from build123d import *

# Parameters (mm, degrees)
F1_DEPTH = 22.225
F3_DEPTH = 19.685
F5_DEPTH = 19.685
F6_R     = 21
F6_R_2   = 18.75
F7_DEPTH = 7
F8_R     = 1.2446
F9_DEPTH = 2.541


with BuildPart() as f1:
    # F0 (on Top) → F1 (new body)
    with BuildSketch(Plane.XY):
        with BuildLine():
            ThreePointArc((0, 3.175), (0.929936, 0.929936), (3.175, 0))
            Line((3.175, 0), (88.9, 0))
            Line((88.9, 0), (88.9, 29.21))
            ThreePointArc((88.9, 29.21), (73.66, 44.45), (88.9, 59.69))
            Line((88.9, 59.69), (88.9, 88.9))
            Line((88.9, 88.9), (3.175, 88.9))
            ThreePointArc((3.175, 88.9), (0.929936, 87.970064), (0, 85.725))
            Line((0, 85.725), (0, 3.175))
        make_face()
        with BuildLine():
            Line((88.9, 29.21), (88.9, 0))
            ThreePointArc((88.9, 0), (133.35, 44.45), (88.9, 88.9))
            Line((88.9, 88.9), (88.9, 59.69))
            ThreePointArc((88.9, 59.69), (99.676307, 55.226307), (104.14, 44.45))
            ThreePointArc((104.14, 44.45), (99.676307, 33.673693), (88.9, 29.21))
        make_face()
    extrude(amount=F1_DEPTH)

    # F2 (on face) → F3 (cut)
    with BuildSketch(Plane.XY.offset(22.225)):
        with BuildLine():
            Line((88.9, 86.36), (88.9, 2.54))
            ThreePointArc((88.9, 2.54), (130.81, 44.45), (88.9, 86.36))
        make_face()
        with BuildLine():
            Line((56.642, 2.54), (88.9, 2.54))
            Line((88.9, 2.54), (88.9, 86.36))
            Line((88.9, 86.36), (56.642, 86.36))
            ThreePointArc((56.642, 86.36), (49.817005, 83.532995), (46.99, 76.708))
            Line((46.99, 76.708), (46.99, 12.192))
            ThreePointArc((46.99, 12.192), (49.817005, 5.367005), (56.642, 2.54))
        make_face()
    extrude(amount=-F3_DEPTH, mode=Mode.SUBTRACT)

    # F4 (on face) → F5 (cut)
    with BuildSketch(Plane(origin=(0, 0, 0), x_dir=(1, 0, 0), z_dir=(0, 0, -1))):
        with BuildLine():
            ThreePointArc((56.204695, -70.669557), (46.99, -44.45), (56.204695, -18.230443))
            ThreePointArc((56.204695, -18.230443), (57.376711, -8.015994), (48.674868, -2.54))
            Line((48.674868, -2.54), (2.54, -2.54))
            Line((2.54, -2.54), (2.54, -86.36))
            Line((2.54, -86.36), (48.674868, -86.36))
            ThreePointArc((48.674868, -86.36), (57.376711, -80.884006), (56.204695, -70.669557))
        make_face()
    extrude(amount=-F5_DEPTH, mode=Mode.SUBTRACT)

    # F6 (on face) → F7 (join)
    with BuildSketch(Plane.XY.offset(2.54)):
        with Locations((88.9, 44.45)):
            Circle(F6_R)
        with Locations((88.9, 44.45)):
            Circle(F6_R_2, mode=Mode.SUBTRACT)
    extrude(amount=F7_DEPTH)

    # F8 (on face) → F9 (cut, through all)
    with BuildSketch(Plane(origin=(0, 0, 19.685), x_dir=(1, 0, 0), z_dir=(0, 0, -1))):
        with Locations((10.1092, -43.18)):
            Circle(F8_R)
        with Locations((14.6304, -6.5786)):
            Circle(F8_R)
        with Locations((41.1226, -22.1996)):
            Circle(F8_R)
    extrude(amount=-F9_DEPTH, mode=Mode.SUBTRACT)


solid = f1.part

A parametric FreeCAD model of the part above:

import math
import FreeCAD as App
import Part
import Sketcher
Q = App.Units.Quantity

doc = App.newDocument("Part")
body = doc.addObject("PartDesign::Body", "Body")

sketch1 = body.newObject("Sketcher::SketchObject", "Sketch")
sketch1.AttachmentSupport = (doc.getObject("XY_Plane"), [""])
sketch1.MapMode = "FlatFace"
sketch1.addGeometry([
    Part.ArcOfCircle(Part.Circle(App.Vector(3.2, 3.2, 0), App.Vector(0, 0, 1), 3.2), math.radians(-180), math.radians(-90)),
    Part.LineSegment(App.Vector(3.2, 0, 0), App.Vector(88.9, 0, 0)),
    Part.ArcOfCircle(Part.Circle(App.Vector(88.9, 44.5, 0), App.Vector(0, 0, 1), 44.5), math.radians(-90), math.radians(90)),
    Part.LineSegment(App.Vector(88.9, 88.9, 0), App.Vector(3.2, 88.9, 0)),
    Part.ArcOfCircle(Part.Circle(App.Vector(3.2, 85.7, 0), App.Vector(0, 0, 1), 3.2), math.radians(90), math.radians(180)),
    Part.LineSegment(App.Vector(0, 85.7, 0), App.Vector(0, 3.2, 0)),
    Part.ArcOfCircle(Part.Circle(App.Vector(88.9, 44.5, 0), App.Vector(0, 0, 1), 15.2), math.radians(90), math.radians(270)),
    Part.ArcOfCircle(Part.Circle(App.Vector(88.9, 44.4, 0), App.Vector(0, 0, 1), 15.2), math.radians(0), math.radians(90)),
    Part.ArcOfCircle(Part.Circle(App.Vector(88.9, 44.5, 0), App.Vector(0, 0, 1), 15.2), math.radians(-90), math.radians(0)),
], False)
sketch1.addConstraint([
    Sketcher.Constraint("Tangent", 0, 2, 1, 1),
    Sketcher.Constraint("Tangent", 1, 2, 2, 1),
    Sketcher.Constraint("Tangent", 2, 2, 3, 1),
    Sketcher.Constraint("Tangent", 3, 2, 4, 1),
    Sketcher.Constraint("Tangent", 4, 2, 5, 1),
    Sketcher.Constraint("Tangent", 5, 2, 0, 1),
    Sketcher.Constraint("Tangent", 6, 1, 7, 2),
    Sketcher.Constraint("Tangent", 7, 1, 8, 2),
    Sketcher.Constraint("Tangent", 8, 1, 6, 2),
    Sketcher.Constraint("Horizontal", 1),
    Sketcher.Constraint("Horizontal", 3),
    Sketcher.Constraint("Vertical", 5),
    Sketcher.Constraint("Coincident", 6, 3, 2, 3),
    Sketcher.Constraint("Equal", 0, 4),
    Sketcher.Constraint("PointOnObject", 0, 2, -1),
    Sketcher.Constraint("PointOnObject", 4, 2, -2),
    Sketcher.Constraint("Horizontal", 8, 3, 7, 1),
    Sketcher.Constraint("Vertical", 2, 2, 6, 1),
    Sketcher.Constraint("Vertical", 6, 1, 8, 1),
    Sketcher.Constraint("Radius", 6, Q("0.6 in")),
    Sketcher.Constraint("Radius", 2, Q("1.75 in")),
    Sketcher.Constraint("Radius", 0, Q("0.125 in")),
    Sketcher.Constraint("DistanceX", -1, 1, 2, 3, Q("3.5 in")),
])
pad1 = body.newObject("PartDesign::Pad", "Pad")
pad1.Profile = sketch1
pad1.Length = Q("0.875 in")

sketch2 = body.newObject("Sketcher::SketchObject", "Sketch001")
sketch2.AttachmentSupport = (doc.getObject("XY_Plane"), [""])
sketch2.MapMode = "FlatFace"
sketch2.AttachmentOffset = App.Placement(App.Vector(0, 0, 0.875 * 25.4), App.Rotation())
sketch2.addGeometry([
    Part.ArcOfCircle(Part.Circle(App.Vector(89, 44, 0), App.Vector(0, 0, 1), 42), math.radians(-90), math.radians(90)),
    Part.LineSegment(App.Vector(89, 86, 0), App.Vector(57, 86, 0)),
    Part.ArcOfCircle(Part.Circle(App.Vector(57, 77, 0), App.Vector(0, 0, 1), 10), math.radians(90), math.radians(180)),
    Part.LineSegment(App.Vector(47, 77, 0), App.Vector(47, 12, 0)),
    Part.ArcOfCircle(Part.Circle(App.Vector(57, 12, 0), App.Vector(0, 0, 1), 10), math.radians(180), math.radians(270)),
    Part.LineSegment(App.Vector(57, 3, 0), App.Vector(89, 3, 0)),
], False)
sketch2.addConstraint([
    Sketcher.Constraint("Tangent", 0, 2, 1, 1),
    Sketcher.Constraint("Tangent", 1, 2, 2, 1),
    Sketcher.Constraint("Tangent", 2, 2, 3, 1),
    Sketcher.Constraint("Tangent", 3, 2, 4, 1),
    Sketcher.Constraint("Tangent", 4, 2, 5, 1),
    Sketcher.Constraint("Tangent", 5, 2, 0, 1),
    Sketcher.Constraint("Horizontal", 1),
    Sketcher.Constraint("Vertical", 3),
    Sketcher.Constraint("Horizontal", 5),
    Sketcher.Constraint("Equal", 2, 4),
    Sketcher.Constraint("Radius", 0, Q("1.65 in")),
    Sketcher.Constraint("Radius", 2, Q("0.38 in")),
    Sketcher.Constraint("DistanceX", 1, 2, 1, 1, Q("1.27 in")),
    Sketcher.Constraint("DistanceX", -1, 1, 0, 3, Q("3.5 in")),
    Sketcher.Constraint("DistanceY", -1, 1, 0, 2, Q("3.4 in")),
])
pocket1 = body.newObject("PartDesign::Pocket", "Pocket")
pocket1.Profile = sketch2
pocket1.Length = Q("0.775 in")

sketch3 = body.newObject("Sketcher::SketchObject", "Sketch002")
sketch3.AttachmentSupport = (doc.getObject("XY_Plane"), [""])
sketch3.MapMode = "FlatFace"
sketch3.addGeometry([
    Part.ArcOfCircle(Part.Circle(App.Vector(89, 44, 0), App.Vector(0, 0, 1), 42), math.radians(141), math.radians(219)),
    Part.ArcOfCircle(Part.Circle(App.Vector(49, 12, 0), App.Vector(0, 0, 1), 10), math.radians(-90), math.radians(39)),
    Part.LineSegment(App.Vector(49, 3, 0), App.Vector(3, 3, 0)),
    Part.LineSegment(App.Vector(3, 3, 0), App.Vector(3, 86, 0)),
    Part.LineSegment(App.Vector(3, 86, 0), App.Vector(49, 86, 0)),
    Part.ArcOfCircle(Part.Circle(App.Vector(49, 77, 0), App.Vector(0, 0, 1), 10), math.radians(-39), math.radians(90)),
], False)
sketch3.addConstraint([
    Sketcher.Constraint("Tangent", 0, 2, 1, 2),
    Sketcher.Constraint("Tangent", 1, 1, 2, 1),
    Sketcher.Constraint("Coincident", 2, 2, 3, 1),
    Sketcher.Constraint("Coincident", 3, 2, 4, 1),
    Sketcher.Constraint("Tangent", 4, 2, 5, 2),
    Sketcher.Constraint("Tangent", 5, 1, 0, 1),
    Sketcher.Constraint("Horizontal", 2),
    Sketcher.Constraint("Vertical", 3),
    Sketcher.Constraint("Horizontal", 4),
    Sketcher.Constraint("Equal", 1, 5),
    Sketcher.Constraint("Vertical", 1, 3, 5, 3),
    Sketcher.Constraint("Radius", 0, Q("1.6500001 in")),
    Sketcher.Constraint("Radius", 1, Q("0.38 in")),
    Sketcher.Constraint("DistanceY", 3, 1, 3, 2, Q("3.3 in")),
    Sketcher.Constraint("DistanceX", -1, 1, 0, 3, Q("3.5000001 in")),
    Sketcher.Constraint("DistanceY", -1, 1, 1, 1, Q("0.1 in")),
    Sketcher.Constraint("DistanceX", -1, 1, 2, 2, Q("0.1 in")),
])
pocket2 = body.newObject("PartDesign::Pocket", "Pocket001")
pocket2.Profile = sketch3
pocket2.Length = Q("0.775 in")
pocket2.Reversed = True

sketch4 = body.newObject("Sketcher::SketchObject", "Sketch003")
sketch4.AttachmentSupport = (doc.getObject("XY_Plane"), [""])
sketch4.MapMode = "FlatFace"
sketch4.AttachmentOffset = App.Placement(App.Vector(0, 0, 0.1 * 25.4), App.Rotation())
sketch4.addGeometry([
    Part.Circle(App.Vector(89, 44, 0), App.Vector(0, 0, 1), 21),
    Part.Circle(App.Vector(89, 44, 0), App.Vector(0, 0, 1), 19),
], False)
sketch4.addConstraint([
    Sketcher.Constraint("Coincident", 1, 3, 0, 3),
    Sketcher.Constraint("DistanceX", -1, 1, 0, 3, Q("3.5 in")),
    Sketcher.Constraint("Diameter", 0, 42.0),
    Sketcher.Constraint("Diameter", 1, 37.5),
    Sketcher.Constraint("DistanceY", -1, 1, 0, 3, Q("1.75 in")),
])
pad2 = body.newObject("PartDesign::Pad", "Pad001")
pad2.Profile = sketch4
pad2.Length = 7

sketch5 = body.newObject("Sketcher::SketchObject", "Sketch004")
sketch5.AttachmentSupport = (doc.getObject("XY_Plane"), [""])
sketch5.MapMode = "FlatFace"
sketch5.AttachmentOffset = App.Placement(App.Vector(0, 0, 0.775 * 25.4), App.Rotation())
sketch5.addGeometry([
    Part.Circle(App.Vector(10.1, 43.2, 0), App.Vector(0, 0, 1), 1.2),
    Part.Circle(App.Vector(14.6, 6.6, 0), App.Vector(0, 0, 1), 1.2),
    Part.Circle(App.Vector(41.1, 22.2, 0), App.Vector(0, 0, 1), 1.2),
], False)
sketch5.addConstraint([
    Sketcher.Constraint("Equal", 0, 1),
    Sketcher.Constraint("Equal", 1, 2),
    Sketcher.Constraint("Diameter", 0, Q("0.098 in")),
    Sketcher.Constraint("DistanceY", -1, 1, 0, 3, Q("1.7 in")),
    Sketcher.Constraint("DistanceX", -1, 1, 0, 3, Q("0.398 in")),
    Sketcher.Constraint("DistanceX", -1, 1, 1, 3, Q("0.576 in")),
    Sketcher.Constraint("DistanceY", -1, 1, 1, 3, Q("0.259 in")),
    Sketcher.Constraint("DistanceX", -1, 1, 2, 3, Q("1.619 in")),
    Sketcher.Constraint("DistanceY", -1, 1, 2, 3, Q("0.874 in")),
])
pocket3 = body.newObject("PartDesign::Pocket", "Pocket002")
pocket3.Profile = sketch5
pocket3.Type = "ThroughAll"
pocket3.Reversed = True

doc.recompute()
